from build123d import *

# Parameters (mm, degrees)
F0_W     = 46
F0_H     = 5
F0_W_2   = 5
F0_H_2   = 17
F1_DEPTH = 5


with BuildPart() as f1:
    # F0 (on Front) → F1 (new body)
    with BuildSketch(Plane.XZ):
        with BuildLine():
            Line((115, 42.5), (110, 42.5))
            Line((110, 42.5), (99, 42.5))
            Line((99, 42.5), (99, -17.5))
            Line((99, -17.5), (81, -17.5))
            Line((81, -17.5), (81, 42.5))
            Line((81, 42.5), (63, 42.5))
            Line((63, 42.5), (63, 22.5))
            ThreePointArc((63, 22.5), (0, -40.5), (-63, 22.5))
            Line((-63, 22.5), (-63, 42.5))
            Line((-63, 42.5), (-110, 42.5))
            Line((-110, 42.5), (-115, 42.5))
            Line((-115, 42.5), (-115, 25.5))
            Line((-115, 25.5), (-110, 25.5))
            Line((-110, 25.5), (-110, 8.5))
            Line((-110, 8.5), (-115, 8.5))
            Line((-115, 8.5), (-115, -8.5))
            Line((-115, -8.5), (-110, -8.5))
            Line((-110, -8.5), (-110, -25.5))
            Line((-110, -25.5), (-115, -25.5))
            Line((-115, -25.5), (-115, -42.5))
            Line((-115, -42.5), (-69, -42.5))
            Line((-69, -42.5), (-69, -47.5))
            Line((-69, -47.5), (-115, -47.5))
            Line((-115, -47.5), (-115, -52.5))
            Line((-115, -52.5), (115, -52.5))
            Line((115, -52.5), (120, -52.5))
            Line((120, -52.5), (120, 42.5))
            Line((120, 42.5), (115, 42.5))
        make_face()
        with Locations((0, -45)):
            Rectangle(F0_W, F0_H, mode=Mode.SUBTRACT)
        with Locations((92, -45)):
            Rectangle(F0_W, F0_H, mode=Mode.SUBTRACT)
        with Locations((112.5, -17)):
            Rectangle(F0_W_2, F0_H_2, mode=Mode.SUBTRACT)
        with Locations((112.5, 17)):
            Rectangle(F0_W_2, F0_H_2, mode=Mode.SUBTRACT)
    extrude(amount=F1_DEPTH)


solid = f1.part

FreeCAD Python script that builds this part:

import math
import FreeCAD as App
import Part
import Sketcher

V = App.Vector

doc = App.newDocument("Part")
body = doc.addObject("PartDesign::Body", "Body")

# Sketch on XZ plane
sketch1 = doc.addObject("Sketcher::SketchObject", "Sketch")
body.addObject(sketch1)
sketch1.AttachmentSupport = (doc.XZ_Plane, [""])
sketch1.MapMode = "FlatFace"
sketch1.addGeometry(Part.LineSegment(V(99, 42, 0), V(99, -18, 0)), False)
sketch1.addGeometry(Part.LineSegment(V(99, -18, 0), V(81, -18, 0)), False)
sketch1.addGeometry(Part.LineSegment(V(81, -18, 0), V(81, 42, 0)), False)
sketch1.addGeometry(Part.LineSegment(V(81, 42, 0), V(63, 42, 0)), False)
sketch1.addGeometry(Part.LineSegment(V(63, 42, 0), V(63, 22, 0)), False)
sketch1.addGeometry(Part.ArcOfCircle(Part.Circle(V(0, 22, 0), V(0, 0, 1), 63), math.radians(180), math.radians(360)), False)
sketch1.addGeometry(Part.LineSegment(V(-63, 22, 0), V(-63, 42, 0)), False)
sketch1.addGeometry(Part.LineSegment(V(-63, 42, 0), V(-115, 42, 0)), False)
sketch1.addGeometry(Part.LineSegment(V(-115, 42, 0), V(-115, 26, 0)), False)
sketch1.addGeometry(Part.LineSegment(V(-115, 26, 0), V(-110, 26, 0)), False)
sketch1.addGeometry(Part.LineSegment(V(-110, 26, 0), V(-110, 8, 0)), False)
sketch1.addGeometry(Part.LineSegment(V(-110, 8, 0), V(-115, 8, 0)), False)
sketch1.addGeometry(Part.LineSegment(V(-115, 8, 0), V(-115, -8, 0)), False)
sketch1.addGeometry(Part.LineSegment(V(-115, -8, 0), V(-110, -8, 0)), False)
sketch1.addGeometry(Part.LineSegment(V(-110, -8, 0), V(-110, -26, 0)), False)
sketch1.addGeometry(Part.LineSegment(V(-110, -26, 0), V(-115, -26, 0)), False)
sketch1.addGeometry(Part.LineSegment(V(-115, -26, 0), V(-115, -42, 0)), False)
sketch1.addGeometry(Part.LineSegment(V(-115, -42, 0), V(-69, -42, 0)), False)
sketch1.addGeometry(Part.LineSegment(V(-69, -42, 0), V(-69, -48, 0)), False)
sketch1.addGeometry(Part.LineSegment(V(-69, -48, 0), V(-115, -48, 0)), False)
sketch1.addGeometry(Part.LineSegment(V(-115, -48, 0), V(-115, -52, 0)), False)
sketch1.addGeometry(Part.LineSegment(V(-115, -52, 0), V(120, -52, 0)), False)
sketch1.addGeometry(Part.LineSegment(V(120, -52, 0), V(120, 42, 0)), False)
sketch1.addGeometry(Part.LineSegment(V(120, 42, 0), V(99, 42, 0)), False)
sketch1.addGeometry(Part.LineSegment(V(23, -48, 0), V(-23, -48, 0)), False)
sketch1.addGeometry(Part.LineSegment(V(-23, -48, 0), V(-23, -42, 0)), False)
sketch1.addGeometry(Part.LineSegment(V(-23, -42, 0), V(23, -42, 0)), False)
sketch1.addGeometry(Part.LineSegment(V(23, -42, 0), V(23, -48, 0)), False)
sketch1.addGeometry(Part.LineSegment(V(115, -48, 0), V(69, -48, 0)), False)
sketch1.addGeometry(Part.LineSegment(V(69, -48, 0), V(69, -42, 0)), False)
sketch1.addGeometry(Part.LineSegment(V(69, -42, 0), V(115, -42, 0)), False)
sketch1.addGeometry(Part.LineSegment(V(115, -42, 0), V(115, -48, 0)), False)
sketch1.addGeometry(Part.LineSegment(V(115, -26, 0), V(110, -26, 0)), False)
sketch1.addGeometry(Part.LineSegment(V(110, -26, 0), V(110, -8, 0)), False)
sketch1.addGeometry(Part.LineSegment(V(110, -8, 0), V(115, -8, 0)), False)
sketch1.addGeometry(Part.LineSegment(V(115, -8, 0), V(115, -26, 0)), False)
sketch1.addGeometry(Part.LineSegment(V(115, 8, 0), V(110, 8, 0)), False)
sketch1.addGeometry(Part.LineSegment(V(110, 8, 0), V(110, 26, 0)), False)
sketch1.addGeometry(Part.LineSegment(V(110, 26, 0), V(115, 26, 0)), False)
sketch1.addGeometry(Part.LineSegment(V(115, 26, 0), V(115, 8, 0)), False)
sketch1.addConstraint(Sketcher.Constraint("Coincident", 0, 2, 1, 1))
sketch1.addConstraint(Sketcher.Constraint("Coincident", 1, 2, 2, 1))
sketch1.addConstraint(Sketcher.Constraint("Coincident", 2, 2, 3, 1))
sketch1.addConstraint(Sketcher.Constraint("Coincident", 3, 2, 4, 1))
sketch1.addConstraint(Sketcher.Constraint("Tangent", 4, 2, 5, 2))
sketch1.addConstraint(Sketcher.Constraint("Tangent", 5, 1, 6, 1))
sketch1.addConstraint(Sketcher.Constraint("Coincident", 6, 2, 7, 1))
sketch1.addConstraint(Sketcher.Constraint("Coincident", 7, 2, 8, 1))
sketch1.addConstraint(Sketcher.Constraint("Coincident", 8, 2, 9, 1))
sketch1.addConstraint(Sketcher.Constraint("Coincident", 9, 2, 10, 1))
sketch1.addConstraint(Sketcher.Constraint("Coincident", 10, 2, 11, 1))
sketch1.addConstraint(Sketcher.Constraint("Coincident", 11, 2, 12, 1))
sketch1.addConstraint(Sketcher.Constraint("Coincident", 12, 2, 13, 1))
sketch1.addConstraint(Sketcher.Constraint("Coincident", 13, 2, 14, 1))
sketch1.addConstraint(Sketcher.Constraint("Coincident", 14, 2, 15, 1))
sketch1.addConstraint(Sketcher.Constraint("Coincident", 15, 2, 16, 1))
sketch1.addConstraint(Sketcher.Constraint("Coincident", 16, 2, 17, 1))
sketch1.addConstraint(Sketcher.Constraint("Coincident", 17, 2, 18, 1))
sketch1.addConstraint(Sketcher.Constraint("Coincident", 18, 2, 19, 1))
sketch1.addConstraint(Sketcher.Constraint("Coincident", 19, 2, 20, 1))
sketch1.addConstraint(Sketcher.Constraint("Coincident", 20, 2, 21, 1))
sketch1.addConstraint(Sketcher.Constraint("Coincident", 21, 2, 22, 1))
sketch1.addConstraint(Sketcher.Constraint("Coincident", 22, 2, 23, 1))
sketch1.addConstraint(Sketcher.Constraint("Coincident", 23, 2, 0, 1))
sketch1.addConstraint(Sketcher.Constraint("Coincident", 24, 2, 25, 1))
sketch1.addConstraint(Sketcher.Constraint("Coincident", 25, 2, 26, 1))
sketch1.addConstraint(Sketcher.Constraint("Coincident", 26, 2, 27, 1))
sketch1.addConstraint(Sketcher.Constraint("Coincident", 27, 2, 24, 1))
sketch1.addConstraint(Sketcher.Constraint("Coincident", 28, 2, 29, 1))
sketch1.addConstraint(Sketcher.Constraint("Coincident", 29, 2, 30, 1))
sketch1.addConstraint(Sketcher.Constraint("Coincident", 30, 2, 31, 1))
sketch1.addConstraint(Sketcher.Constraint("Coincident", 31, 2, 28, 1))
sketch1.addConstraint(Sketcher.Constraint("Coincident", 32, 2, 33, 1))
sketch1.addConstraint(Sketcher.Constraint("Coincident", 33, 2, 34, 1))
sketch1.addConstraint(Sketcher.Constraint("Coincident", 34, 2, 35, 1))
sketch1.addConstraint(Sketcher.Constraint("Coincident", 35, 2, 32, 1))
sketch1.addConstraint(Sketcher.Constraint("Coincident", 36, 2, 37, 1))
sketch1.addConstraint(Sketcher.Constraint("Coincident", 37, 2, 38, 1))
sketch1.addConstraint(Sketcher.Constraint("Coincident", 38, 2, 39, 1))
sketch1.addConstraint(Sketcher.Constraint("Coincident", 39, 2, 36, 1))
sketch1.addConstraint(Sketcher.Constraint("Vertical", 0))
sketch1.addConstraint(Sketcher.Constraint("Horizontal", 1))
sketch1.addConstraint(Sketcher.Constraint("Vertical", 2))
sketch1.addConstraint(Sketcher.Constraint("Horizontal", 3))
sketch1.addConstraint(Sketcher.Constraint("Vertical", 4))
sketch1.addConstraint(Sketcher.Constraint("Vertical", 6))
sketch1.addConstraint(Sketcher.Constraint("Horizontal", 7))
sketch1.addConstraint(Sketcher.Constraint("Vertical", 8))
sketch1.addConstraint(Sketcher.Constraint("Horizontal", 9))
sketch1.addConstraint(Sketcher.Constraint("Vertical", 10))
sketch1.addConstraint(Sketcher.Constraint("Horizontal", 11))
sketch1.addConstraint(Sketcher.Constraint("Vertical", 12))
sketch1.addConstraint(Sketcher.Constraint("Horizontal", 13))
sketch1.addConstraint(Sketcher.Constraint("Vertical", 14))
sketch1.addConstraint(Sketcher.Constraint("Horizontal", 15))
sketch1.addConstraint(Sketcher.Constraint("Vertical", 16))
sketch1.addConstraint(Sketcher.Constraint("Horizontal", 17))
sketch1.addConstraint(Sketcher.Constraint("Vertical", 18))
sketch1.addConstraint(Sketcher.Constraint("Horizontal", 19))
sketch1.addConstraint(Sketcher.Constraint("Vertical", 20))
sketch1.addConstraint(Sketcher.Constraint("Horizontal", 21))
sketch1.addConstraint(Sketcher.Constraint("Vertical", 22))
sketch1.addConstraint(Sketcher.Constraint("Horizontal", 23))
sketch1.addConstraint(Sketcher.Constraint("Horizontal", 24))
sketch1.addConstraint(Sketcher.Constraint("Vertical", 25))
sketch1.addConstraint(Sketcher.Constraint("Horizontal", 26))
sketch1.addConstraint(Sketcher.Constraint("Vertical", 27))
sketch1.addConstraint(Sketcher.Constraint("Horizontal", 28))
sketch1.addConstraint(Sketcher.Constraint("Vertical", 29))
sketch1.addConstraint(Sketcher.Constraint("Horizontal", 30))
sketch1.addConstraint(Sketcher.Constraint("Vertical", 31))
sketch1.addConstraint(Sketcher.Constraint("Horizontal", 32))
sketch1.addConstraint(Sketcher.Constraint("Vertical", 33))
sketch1.addConstraint(Sketcher.Constraint("Horizontal", 34))
sketch1.addConstraint(Sketcher.Constraint("Vertical", 35))
sketch1.addConstraint(Sketcher.Constraint("Horizontal", 36))
sketch1.addConstraint(Sketcher.Constraint("Vertical", 37))
sketch1.addConstraint(Sketcher.Constraint("Horizontal", 38))
sketch1.addConstraint(Sketcher.Constraint("Vertical", 39))
sketch1.addConstraint(Sketcher.Constraint("Symmetric", 7, 2, 30, 2, -1, 1))
sketch1.addConstraint(Sketcher.Constraint("Symmetric", 9, 2, 32, 2, -1, 1))
sketch1.addConstraint(Sketcher.Constraint("Symmetric", 11, 2, 34, 2, -1, 1))
sketch1.addConstraint(Sketcher.Constraint("Symmetric", 13, 2, 36, 2, -1, 1))
sketch1.addConstraint(Sketcher.Constraint("Symmetric", 15, 2, 38, 2, -1, 1))
sketch1.addConstraint(Sketcher.Constraint("Symmetric", 3, 2, 6, 2, -2))
sketch1.addConstraint(Sketcher.Constraint("Symmetric", 18, 2, 28, 2, -2))
sketch1.addConstraint(Sketcher.Constraint("Symmetric", 16, 2, 30, 2, -2))
sketch1.addConstraint(Sketcher.Constraint("Symmetric", 14, 2, 32, 2, -2))
sketch1.addConstraint(Sketcher.Constraint("Symmetric", 11, 2, 39, 2, -2))
sketch1.addConstraint(Sketcher.Constraint("Horizontal", 7, 2, 22, 2))
sketch1.addConstraint(Sketcher.Constraint("Horizontal", 19, 2, 24, 2))
sketch1.addConstraint(Sketcher.Constraint("Horizontal", 17, 2, 25, 2))
sketch1.addConstraint(Sketcher.Constraint("Vertical", 16, 2, 19, 2))
sketch1.addConstraint(Sketcher.Constraint("Equal", 1, 3))
sketch1.addConstraint(Sketcher.Constraint("Equal", 19, 24))
sketch1.addConstraint(Sketcher.Constraint("Equal", 8, 10))
sketch1.addConstraint(Sketcher.Constraint("Equal", 10, 12))
sketch1.addConstraint(Sketcher.Constraint("Equal", 38, 18))
sketch1.addConstraint(Sketcher.Constraint("Equal", 18, 20))
sketch1.addConstraint(Sketcher.Constraint("Radius", 5, 63.0))
sketch1.addConstraint(Sketcher.Constraint("DistanceX", 1, 2, 1, 1, 18.0))
sketch1.addConstraint(Sketcher.Constraint("DistanceX", 7, 2, 7, 1, 52.0))
sketch1.addConstraint(Sketcher.Constraint("DistanceX", 9, 1, 9, 2, 5.0))
sketch1.addConstraint(Sketcher.Constraint("DistanceX", 17, 1, 17, 2, 46.0))
sketch1.addConstraint(Sketcher.Constraint("DistanceX", 21, 1, 21, 2, 235.0))
sketch1.addConstraint(Sketcher.Constraint("DistanceY", 0, 2, 0, 1, 60.0))
sketch1.addConstraint(Sketcher.Constraint("DistanceY", 4, 2, 4, 1, 20.0))
sketch1.addConstraint(Sketcher.Constraint("DistanceY", 8, 2, 8, 1, 17.0))
sketch1.addConstraint(Sketcher.Constraint("DistanceX", 24, 2, -1, 1, 23.0))
pad1 = doc.addObject("PartDesign::Pad", "Pad")
body.addObject(pad1)
pad1.Profile = sketch1
pad1.Length = 5

doc.recompute()
